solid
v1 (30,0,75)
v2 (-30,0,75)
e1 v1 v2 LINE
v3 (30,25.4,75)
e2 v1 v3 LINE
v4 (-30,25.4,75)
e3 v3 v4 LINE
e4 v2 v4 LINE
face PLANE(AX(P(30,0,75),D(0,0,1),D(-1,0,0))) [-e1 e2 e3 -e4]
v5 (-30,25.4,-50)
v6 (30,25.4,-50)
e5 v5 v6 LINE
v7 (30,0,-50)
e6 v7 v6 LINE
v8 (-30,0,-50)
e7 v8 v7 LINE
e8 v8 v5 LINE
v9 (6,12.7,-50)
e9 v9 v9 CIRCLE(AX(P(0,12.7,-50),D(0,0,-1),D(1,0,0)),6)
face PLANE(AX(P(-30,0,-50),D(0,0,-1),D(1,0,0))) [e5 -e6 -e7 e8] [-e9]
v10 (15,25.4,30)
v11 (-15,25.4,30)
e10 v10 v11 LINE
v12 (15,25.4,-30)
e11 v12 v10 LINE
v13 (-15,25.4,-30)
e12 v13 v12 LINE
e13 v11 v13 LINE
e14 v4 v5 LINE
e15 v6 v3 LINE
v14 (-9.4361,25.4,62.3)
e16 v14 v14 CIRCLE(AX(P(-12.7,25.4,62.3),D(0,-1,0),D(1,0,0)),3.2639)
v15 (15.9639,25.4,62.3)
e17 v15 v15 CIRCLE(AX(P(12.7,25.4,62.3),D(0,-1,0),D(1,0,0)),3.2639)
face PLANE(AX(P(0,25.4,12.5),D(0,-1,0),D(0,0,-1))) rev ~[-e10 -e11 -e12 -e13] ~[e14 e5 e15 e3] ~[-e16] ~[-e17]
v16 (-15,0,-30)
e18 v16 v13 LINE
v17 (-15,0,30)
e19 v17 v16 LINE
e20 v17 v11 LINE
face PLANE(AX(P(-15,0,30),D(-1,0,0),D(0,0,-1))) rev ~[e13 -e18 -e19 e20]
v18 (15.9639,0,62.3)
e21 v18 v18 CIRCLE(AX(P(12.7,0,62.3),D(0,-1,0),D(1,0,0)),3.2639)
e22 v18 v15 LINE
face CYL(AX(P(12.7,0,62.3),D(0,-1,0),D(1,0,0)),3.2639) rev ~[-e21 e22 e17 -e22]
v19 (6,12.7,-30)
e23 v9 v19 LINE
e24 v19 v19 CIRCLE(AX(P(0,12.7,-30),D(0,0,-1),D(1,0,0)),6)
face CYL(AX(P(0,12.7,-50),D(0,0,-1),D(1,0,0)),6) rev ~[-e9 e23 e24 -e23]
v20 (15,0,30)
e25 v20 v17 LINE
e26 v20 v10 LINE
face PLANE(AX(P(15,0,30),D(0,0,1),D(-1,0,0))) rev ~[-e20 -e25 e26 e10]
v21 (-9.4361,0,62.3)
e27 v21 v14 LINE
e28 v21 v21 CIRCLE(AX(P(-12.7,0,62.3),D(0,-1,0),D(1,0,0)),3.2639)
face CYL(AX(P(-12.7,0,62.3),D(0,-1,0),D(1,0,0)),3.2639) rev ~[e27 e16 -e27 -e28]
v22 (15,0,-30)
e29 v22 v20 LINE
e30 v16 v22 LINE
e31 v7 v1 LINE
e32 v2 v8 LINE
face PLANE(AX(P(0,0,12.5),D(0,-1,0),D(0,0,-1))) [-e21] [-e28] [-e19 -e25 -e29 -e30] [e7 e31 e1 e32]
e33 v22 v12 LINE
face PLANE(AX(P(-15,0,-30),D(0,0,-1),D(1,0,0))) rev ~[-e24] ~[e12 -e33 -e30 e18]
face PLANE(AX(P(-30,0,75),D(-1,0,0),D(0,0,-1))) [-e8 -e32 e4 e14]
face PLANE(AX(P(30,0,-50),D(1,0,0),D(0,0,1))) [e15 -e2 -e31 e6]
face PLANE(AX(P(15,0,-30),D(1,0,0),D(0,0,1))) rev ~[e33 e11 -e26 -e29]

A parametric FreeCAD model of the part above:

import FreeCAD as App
import Part
import Sketcher
from FreeCAD import Vector
Q = App.Units.Quantity


def add_polygon(sketch, points):
    """Adds a closed chain of lines whose ends are joined by coincident constraints."""
    first, n = sketch.GeometryCount, len(points)
    for a, b in zip(points, points[1:] + points[:1]):
        sketch.addGeometry(Part.LineSegment(App.Vector(*a, 0), App.Vector(*b, 0)), False)
    for i in range(n):
        sketch.addConstraint(Sketcher.Constraint("Coincident", first + i, 2, first + (i + 1) % n, 1))

doc = App.newDocument("Part")
body = doc.addObject("PartDesign::Body", "Body")

# Sketch on XZ plane
sketch1 = body.newObject("Sketcher::SketchObject", "Sketch")
sketch1.AttachmentSupport = (doc.getObject("XZ_Plane"), [""])
sketch1.MapMode = "FlatFace"
add_polygon(sketch1, [(-30, -50), (30, -50), (30, 75), (-30, 75)])  # lines 0-3
add_polygon(sketch1, [(-15, 30), (15, 30), (15, -30), (-15, -30)])  # lines 4-7
sketch1.addGeometry(Part.Circle(Vector(-12.7, 62.3, 0), Vector(0, 0, 1), 3.3), False)  # 8
sketch1.addGeometry(Part.Circle(Vector(12.7, 62.3, 0), Vector(0, 0, 1), 3.3), False)  # 9
sketch1.addConstraint([
    Sketcher.Constraint("Horizontal", 0),
    Sketcher.Constraint("Vertical", 1),
    Sketcher.Constraint("Horizontal", 2),
    Sketcher.Constraint("Vertical", 3),
    Sketcher.Constraint("Horizontal", 4),
    Sketcher.Constraint("Vertical", 5),
    Sketcher.Constraint("Horizontal", 6),
    Sketcher.Constraint("Vertical", 7),
    Sketcher.Constraint("Equal", 8, 9),
    Sketcher.Constraint("Symmetric", 4, 2, 6, 2, -1, 1),
    Sketcher.Constraint("Symmetric", 8, 3, 9, 3, -2),
    Sketcher.Constraint("Equal", 2, 5),
    Sketcher.Constraint("DistanceX", 0, 1, 0, 2, Q("60 mm")),
    Sketcher.Constraint("DistanceX", 4, 1, 4, 2, Q("30 mm")),
    Sketcher.Constraint("DistanceY", 1, 1, 1, 2, Q("125 mm")),
    Sketcher.Constraint("DistanceX", -1, 1, 0, 2, Q("30 mm")),
    Sketcher.Constraint("DistanceY", 0, 2, -1, 1, Q("50 mm")),
    Sketcher.Constraint("Diameter", 8, Q("6.5278 mm")),
    Sketcher.Constraint("DistanceX", 8, 3, -1, 1, Q("12.7 mm")),
    Sketcher.Constraint("DistanceY", -1, 1, 8, 3, Q("62.3 mm")),
])
pad1 = body.newObject("PartDesign::Pad", "Pad")
pad1.Profile = sketch1
pad1.Length = 25.4
pad1.Reversed = True

# Sketch on XY plane
sketch2 = body.newObject("Sketcher::SketchObject", "Sketch001")
sketch2.AttachmentSupport = (doc.getObject("XY_Plane"), [""])
sketch2.MapMode = "FlatFace"
sketch2.AttachmentOffset = App.Placement(Vector(0, 0, -50), App.Rotation())
sketch2.addGeometry(Part.Circle(Vector(0, 13, 0), Vector(0, 0, 1), 6), False)
sketch2.addConstraint([
    Sketcher.Constraint("PointOnObject", 0, 3, -2),
    Sketcher.Constraint("Diameter", 0, Q("12 mm")),
    Sketcher.Constraint("DistanceY", -1, 1, 0, 3, Q("12.7 mm")),
])
pocket1 = body.newObject("PartDesign::Pocket", "Pocket")
pocket1.Profile = sketch2
pocket1.Type = "UpToFirst"
pocket1.Reversed = True

doc.recompute()
